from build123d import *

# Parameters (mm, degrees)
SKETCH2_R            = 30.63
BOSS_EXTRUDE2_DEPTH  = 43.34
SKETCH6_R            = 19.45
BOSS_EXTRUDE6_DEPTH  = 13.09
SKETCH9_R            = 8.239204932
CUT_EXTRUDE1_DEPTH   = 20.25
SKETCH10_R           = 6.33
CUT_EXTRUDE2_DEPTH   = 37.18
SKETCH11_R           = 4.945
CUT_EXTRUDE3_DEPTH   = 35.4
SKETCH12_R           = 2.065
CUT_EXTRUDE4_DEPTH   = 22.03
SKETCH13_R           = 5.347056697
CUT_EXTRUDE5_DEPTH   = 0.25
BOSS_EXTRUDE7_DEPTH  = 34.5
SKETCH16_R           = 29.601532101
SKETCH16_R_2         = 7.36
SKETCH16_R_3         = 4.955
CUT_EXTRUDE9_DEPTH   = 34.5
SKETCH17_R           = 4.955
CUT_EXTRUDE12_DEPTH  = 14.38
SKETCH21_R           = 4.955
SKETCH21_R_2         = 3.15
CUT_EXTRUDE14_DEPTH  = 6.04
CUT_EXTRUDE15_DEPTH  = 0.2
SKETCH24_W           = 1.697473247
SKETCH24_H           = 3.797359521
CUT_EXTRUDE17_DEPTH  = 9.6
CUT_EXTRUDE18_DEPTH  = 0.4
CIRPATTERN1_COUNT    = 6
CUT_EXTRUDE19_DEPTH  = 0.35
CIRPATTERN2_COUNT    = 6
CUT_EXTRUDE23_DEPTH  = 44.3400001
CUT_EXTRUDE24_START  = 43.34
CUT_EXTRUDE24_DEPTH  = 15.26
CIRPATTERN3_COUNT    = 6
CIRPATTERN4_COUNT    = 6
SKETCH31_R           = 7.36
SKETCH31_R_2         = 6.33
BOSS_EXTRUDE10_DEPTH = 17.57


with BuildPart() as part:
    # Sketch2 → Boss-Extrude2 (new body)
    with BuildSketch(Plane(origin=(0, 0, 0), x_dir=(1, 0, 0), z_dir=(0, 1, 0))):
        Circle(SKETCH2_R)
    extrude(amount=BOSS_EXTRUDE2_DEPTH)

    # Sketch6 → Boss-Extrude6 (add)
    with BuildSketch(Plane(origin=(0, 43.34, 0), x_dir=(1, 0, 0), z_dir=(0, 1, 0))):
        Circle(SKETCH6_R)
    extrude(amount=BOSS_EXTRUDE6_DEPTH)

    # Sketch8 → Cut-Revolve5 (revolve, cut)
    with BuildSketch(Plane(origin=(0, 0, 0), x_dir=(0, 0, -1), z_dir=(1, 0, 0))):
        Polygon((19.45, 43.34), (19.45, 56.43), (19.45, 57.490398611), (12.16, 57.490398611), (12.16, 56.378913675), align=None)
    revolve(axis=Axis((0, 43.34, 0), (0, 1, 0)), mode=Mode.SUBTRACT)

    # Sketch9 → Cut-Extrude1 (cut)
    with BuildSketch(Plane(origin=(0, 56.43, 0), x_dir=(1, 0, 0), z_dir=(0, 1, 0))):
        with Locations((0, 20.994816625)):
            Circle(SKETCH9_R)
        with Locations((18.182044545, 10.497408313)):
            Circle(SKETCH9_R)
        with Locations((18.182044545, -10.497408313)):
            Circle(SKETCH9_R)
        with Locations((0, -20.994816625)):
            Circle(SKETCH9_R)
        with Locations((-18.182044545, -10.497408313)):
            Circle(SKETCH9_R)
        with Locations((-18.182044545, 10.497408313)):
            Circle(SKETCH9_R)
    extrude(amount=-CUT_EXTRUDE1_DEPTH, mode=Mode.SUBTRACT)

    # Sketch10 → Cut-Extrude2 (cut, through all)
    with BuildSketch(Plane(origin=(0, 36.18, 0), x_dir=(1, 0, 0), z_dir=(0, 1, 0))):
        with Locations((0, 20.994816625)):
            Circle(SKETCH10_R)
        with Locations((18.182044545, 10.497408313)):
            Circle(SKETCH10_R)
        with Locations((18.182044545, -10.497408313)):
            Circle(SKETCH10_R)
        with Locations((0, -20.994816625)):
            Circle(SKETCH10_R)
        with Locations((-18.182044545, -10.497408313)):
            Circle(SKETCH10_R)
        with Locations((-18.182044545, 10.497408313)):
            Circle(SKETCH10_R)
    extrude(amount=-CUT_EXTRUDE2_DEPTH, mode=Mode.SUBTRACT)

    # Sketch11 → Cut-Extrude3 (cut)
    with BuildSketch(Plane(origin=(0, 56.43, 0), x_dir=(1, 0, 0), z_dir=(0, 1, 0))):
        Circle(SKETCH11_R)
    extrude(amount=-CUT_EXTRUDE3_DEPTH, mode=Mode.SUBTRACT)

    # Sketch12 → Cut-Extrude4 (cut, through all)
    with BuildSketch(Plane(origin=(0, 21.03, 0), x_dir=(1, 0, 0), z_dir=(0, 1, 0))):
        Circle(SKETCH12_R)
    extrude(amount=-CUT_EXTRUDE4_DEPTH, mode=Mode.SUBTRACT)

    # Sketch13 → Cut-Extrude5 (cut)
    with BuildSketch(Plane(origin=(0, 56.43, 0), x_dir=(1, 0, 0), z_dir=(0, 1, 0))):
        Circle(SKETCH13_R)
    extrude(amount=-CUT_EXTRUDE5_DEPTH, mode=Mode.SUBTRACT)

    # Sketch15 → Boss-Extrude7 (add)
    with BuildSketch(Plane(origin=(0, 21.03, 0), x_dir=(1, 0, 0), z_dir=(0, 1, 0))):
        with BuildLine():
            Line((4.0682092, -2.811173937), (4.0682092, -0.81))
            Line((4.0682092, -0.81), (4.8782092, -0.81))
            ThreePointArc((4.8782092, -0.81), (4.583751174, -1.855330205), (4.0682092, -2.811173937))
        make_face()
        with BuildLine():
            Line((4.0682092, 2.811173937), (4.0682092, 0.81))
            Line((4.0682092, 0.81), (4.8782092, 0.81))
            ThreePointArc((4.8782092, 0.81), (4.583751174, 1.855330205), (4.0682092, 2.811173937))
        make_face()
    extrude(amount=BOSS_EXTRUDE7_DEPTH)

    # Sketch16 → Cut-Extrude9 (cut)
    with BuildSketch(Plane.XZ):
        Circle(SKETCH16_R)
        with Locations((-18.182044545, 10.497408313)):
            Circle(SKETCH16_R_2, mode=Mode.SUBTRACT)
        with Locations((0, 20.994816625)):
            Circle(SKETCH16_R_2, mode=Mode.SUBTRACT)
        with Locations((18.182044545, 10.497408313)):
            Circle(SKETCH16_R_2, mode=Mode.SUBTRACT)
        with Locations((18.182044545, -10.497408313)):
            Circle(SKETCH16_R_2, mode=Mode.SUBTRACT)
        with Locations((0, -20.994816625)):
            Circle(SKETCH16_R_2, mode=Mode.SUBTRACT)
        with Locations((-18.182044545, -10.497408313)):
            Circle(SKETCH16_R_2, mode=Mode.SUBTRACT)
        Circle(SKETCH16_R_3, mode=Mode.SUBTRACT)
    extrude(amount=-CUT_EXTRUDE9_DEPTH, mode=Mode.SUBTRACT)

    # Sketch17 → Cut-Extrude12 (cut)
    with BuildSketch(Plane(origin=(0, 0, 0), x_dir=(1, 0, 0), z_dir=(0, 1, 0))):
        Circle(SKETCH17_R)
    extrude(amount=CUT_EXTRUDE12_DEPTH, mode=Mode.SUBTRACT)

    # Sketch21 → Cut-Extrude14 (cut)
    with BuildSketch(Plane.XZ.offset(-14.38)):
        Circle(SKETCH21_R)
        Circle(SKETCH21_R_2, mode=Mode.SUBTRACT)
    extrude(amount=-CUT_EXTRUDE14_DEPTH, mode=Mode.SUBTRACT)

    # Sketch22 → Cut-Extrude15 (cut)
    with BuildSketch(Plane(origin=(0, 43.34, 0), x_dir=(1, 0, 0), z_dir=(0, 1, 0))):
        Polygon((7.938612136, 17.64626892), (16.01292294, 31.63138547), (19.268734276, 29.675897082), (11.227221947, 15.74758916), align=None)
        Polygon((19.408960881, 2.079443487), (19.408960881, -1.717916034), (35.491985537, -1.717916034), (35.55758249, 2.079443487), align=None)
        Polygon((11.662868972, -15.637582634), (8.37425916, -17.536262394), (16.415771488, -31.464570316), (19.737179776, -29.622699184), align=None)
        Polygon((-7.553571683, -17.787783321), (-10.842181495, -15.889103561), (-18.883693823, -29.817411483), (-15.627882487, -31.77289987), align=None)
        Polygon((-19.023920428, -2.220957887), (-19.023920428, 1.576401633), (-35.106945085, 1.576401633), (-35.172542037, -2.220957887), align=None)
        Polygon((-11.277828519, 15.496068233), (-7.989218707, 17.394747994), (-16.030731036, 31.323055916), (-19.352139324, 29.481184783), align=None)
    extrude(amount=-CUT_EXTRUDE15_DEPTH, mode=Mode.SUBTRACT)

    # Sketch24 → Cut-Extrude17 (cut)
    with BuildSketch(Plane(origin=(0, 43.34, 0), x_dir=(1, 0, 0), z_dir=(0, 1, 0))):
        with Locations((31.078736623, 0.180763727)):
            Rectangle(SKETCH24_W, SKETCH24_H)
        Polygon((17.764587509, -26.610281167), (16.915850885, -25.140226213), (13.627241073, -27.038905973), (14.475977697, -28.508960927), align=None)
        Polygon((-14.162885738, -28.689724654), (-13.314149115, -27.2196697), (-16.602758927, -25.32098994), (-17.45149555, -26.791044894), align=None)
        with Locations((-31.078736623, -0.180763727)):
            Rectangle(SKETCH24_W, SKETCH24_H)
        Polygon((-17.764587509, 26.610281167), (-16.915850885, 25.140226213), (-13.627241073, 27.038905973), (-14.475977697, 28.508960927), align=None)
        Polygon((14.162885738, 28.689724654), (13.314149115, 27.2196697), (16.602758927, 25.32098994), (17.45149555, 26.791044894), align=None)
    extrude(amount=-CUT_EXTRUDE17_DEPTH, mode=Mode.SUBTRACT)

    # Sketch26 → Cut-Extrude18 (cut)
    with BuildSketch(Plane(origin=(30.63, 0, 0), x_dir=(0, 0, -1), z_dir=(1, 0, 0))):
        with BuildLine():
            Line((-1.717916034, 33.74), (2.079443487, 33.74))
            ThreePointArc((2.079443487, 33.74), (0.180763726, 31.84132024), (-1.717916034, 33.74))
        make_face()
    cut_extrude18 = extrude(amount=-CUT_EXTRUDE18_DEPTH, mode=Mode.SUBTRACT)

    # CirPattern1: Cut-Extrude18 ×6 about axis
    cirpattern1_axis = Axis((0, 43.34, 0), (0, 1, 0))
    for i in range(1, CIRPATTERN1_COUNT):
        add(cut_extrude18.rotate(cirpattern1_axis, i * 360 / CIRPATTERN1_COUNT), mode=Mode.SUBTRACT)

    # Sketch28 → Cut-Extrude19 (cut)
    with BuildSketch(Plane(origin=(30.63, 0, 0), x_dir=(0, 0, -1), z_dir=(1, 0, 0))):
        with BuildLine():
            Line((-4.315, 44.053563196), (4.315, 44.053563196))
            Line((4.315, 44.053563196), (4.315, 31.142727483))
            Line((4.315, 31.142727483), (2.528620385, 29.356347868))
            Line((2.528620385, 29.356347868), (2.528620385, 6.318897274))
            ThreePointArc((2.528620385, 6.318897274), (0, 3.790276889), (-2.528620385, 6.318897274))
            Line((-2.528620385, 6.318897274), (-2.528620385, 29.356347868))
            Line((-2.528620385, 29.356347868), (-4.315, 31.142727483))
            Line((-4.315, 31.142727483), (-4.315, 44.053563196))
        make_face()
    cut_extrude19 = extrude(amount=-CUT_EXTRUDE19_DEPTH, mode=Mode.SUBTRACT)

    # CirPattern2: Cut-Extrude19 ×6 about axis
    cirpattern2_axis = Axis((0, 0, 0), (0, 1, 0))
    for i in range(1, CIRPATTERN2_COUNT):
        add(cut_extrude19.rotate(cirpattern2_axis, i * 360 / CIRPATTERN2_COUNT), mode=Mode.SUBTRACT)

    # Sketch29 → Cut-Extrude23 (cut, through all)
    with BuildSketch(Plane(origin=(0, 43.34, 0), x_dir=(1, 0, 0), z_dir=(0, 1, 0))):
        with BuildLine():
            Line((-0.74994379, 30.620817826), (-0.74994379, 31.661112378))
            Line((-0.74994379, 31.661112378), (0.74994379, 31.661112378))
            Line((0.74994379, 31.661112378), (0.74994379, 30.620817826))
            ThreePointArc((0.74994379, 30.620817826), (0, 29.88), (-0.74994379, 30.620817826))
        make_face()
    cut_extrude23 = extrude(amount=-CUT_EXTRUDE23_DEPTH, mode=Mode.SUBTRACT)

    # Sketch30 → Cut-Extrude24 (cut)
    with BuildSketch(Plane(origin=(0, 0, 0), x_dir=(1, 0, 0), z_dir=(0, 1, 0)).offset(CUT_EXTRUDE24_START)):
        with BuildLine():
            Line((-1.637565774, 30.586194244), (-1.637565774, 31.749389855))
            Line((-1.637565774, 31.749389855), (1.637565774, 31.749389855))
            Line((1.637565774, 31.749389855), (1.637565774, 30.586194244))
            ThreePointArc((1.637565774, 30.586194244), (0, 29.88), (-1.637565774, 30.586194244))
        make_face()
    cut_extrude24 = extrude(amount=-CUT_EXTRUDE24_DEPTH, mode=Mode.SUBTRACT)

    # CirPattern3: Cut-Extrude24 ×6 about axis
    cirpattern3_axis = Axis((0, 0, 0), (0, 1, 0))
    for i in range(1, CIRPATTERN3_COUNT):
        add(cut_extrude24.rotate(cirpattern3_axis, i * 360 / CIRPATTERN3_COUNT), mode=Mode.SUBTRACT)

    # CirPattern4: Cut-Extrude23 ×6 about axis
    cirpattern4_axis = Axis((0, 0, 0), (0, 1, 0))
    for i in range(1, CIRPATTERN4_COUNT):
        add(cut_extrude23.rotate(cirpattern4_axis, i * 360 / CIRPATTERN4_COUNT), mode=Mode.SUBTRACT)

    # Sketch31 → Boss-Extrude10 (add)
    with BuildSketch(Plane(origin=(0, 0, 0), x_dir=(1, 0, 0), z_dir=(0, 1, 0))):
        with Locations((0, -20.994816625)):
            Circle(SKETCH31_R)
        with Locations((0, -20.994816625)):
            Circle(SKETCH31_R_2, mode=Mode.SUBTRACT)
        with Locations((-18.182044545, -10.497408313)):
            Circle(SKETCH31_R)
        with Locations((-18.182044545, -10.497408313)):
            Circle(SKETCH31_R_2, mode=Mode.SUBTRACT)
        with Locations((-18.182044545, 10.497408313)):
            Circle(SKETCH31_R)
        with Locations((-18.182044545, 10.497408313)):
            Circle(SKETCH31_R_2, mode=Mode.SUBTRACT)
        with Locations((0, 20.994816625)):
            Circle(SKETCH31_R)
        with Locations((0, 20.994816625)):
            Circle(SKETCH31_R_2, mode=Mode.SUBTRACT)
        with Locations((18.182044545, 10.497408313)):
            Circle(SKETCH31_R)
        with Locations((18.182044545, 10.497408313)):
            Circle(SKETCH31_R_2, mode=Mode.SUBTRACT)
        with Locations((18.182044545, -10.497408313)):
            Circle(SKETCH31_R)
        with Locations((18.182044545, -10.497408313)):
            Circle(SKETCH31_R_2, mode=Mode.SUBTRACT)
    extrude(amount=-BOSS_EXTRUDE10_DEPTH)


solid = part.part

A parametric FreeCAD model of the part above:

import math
import FreeCAD as App
import Part
import Sketcher

V = App.Vector
Q = App.Units.Quantity

doc = App.newDocument("Part")
body = doc.addObject("PartDesign::Body", "Body")

sketch1 = body.newObject("Sketcher::SketchObject", "Sketch")
sketch1.AttachmentSupport = (doc.getObject("XZ_Plane"), [""])
sketch1.MapMode = "FlatFace"
sketch1.addGeometry(Part.Circle(V(0, 0, 0), V(0, 0, 1), 31), False)
sketch1.addConstraint([
    Sketcher.Constraint("Coincident", 0, 3, -1, 1),
    Sketcher.Constraint("Diameter", 0, 61.26),
])
pad1 = body.newObject("PartDesign::Pad", "Pad")
pad1.Profile = sketch1
pad1.Length = 43.34
pad1.Reversed = True

sketch2 = body.newObject("Sketcher::SketchObject", "Sketch001")
sketch2.AttachmentSupport = (doc.getObject("XZ_Plane"), [""])
sketch2.MapMode = "FlatFace"
sketch2.AttachmentOffset = App.Placement(V(0, 0, -43.34), App.Rotation())
sketch2.addGeometry(Part.Circle(V(0, 0, 0), V(0, 0, 1), 19), False)
sketch2.addConstraint([
    Sketcher.Constraint("Coincident", 0, 3, -1, 1),
    Sketcher.Constraint("Diameter", 0, 38.9),
])
pad2 = body.newObject("PartDesign::Pad", "Pad001")
pad2.Profile = sketch2
pad2.Length = 13.09
pad2.Reversed = True

sketch3 = body.newObject("Sketcher::SketchObject", "Sketch002")
sketch3.AttachmentSupport = (doc.getObject("YZ_Plane"), [""])
sketch3.MapMode = "FlatFace"
sketch3.addGeometry([
    Part.LineSegment(V(43.3, -19.4, 0), V(57.5, -19.4, 0)),
    Part.LineSegment(V(57.5, -19.4, 0), V(57.5, -12.2, 0)),
    Part.LineSegment(V(57.5, -12.2, 0), V(56.4, -12.2, 0)),
    Part.LineSegment(V(56.4, -12.2, 0), V(43.3, -19.4, 0)),
], False)
sketch3.addConstraint([
    Sketcher.Constraint("Coincident", 0, 2, 1, 1),
    Sketcher.Constraint("Coincident", 1, 2, 2, 1),
    Sketcher.Constraint("Coincident", 2, 2, 3, 1),
    Sketcher.Constraint("Coincident", 3, 2, 0, 1),
    Sketcher.Constraint("Horizontal", 0),
    Sketcher.Constraint("Vertical", 1),
    Sketcher.Constraint("Horizontal", 2),
    Sketcher.Constraint("DistanceY", 1, 1, 1, 2, 7.29),
    Sketcher.Constraint("DistanceY", 0, 2, -1, 1, 19.45),
    Sketcher.Constraint("DistanceX", -1, 1, 3, 2, 43.34),
    Sketcher.Constraint("DistanceX", 0, 1, 0, 2, 14.150399),
    Sketcher.Constraint("DistanceX", 2, 2, 2, 1, 1.111485),
])
groove = body.newObject("PartDesign::Groove", "Groove")
groove.Profile = sketch3
groove.ReferenceAxis = (sketch3, ["H_Axis"])
groove.Angle = 360

sketch4 = body.newObject("Sketcher::SketchObject", "Sketch003")
sketch4.AttachmentSupport = (doc.getObject("XZ_Plane"), [""])
sketch4.MapMode = "FlatFace"
sketch4.AttachmentOffset = App.Placement(V(0, 0, -56.43), App.Rotation())
sketch4.addGeometry([
    Part.Circle(V(0, -21, 0), V(0, 0, 1), 8),
    Part.Circle(V(18, -10, 0), V(0, 0, 1), 8),
    Part.Circle(V(18, 10, 0), V(0, 0, 1), 8),
    Part.Circle(V(0, 21, 0), V(0, 0, 1), 8),
    Part.Circle(V(-18, 10, 0), V(0, 0, 1), 8),
    Part.Circle(V(-18, -10, 0), V(0, 0, 1), 8),
], False)
sketch4.addConstraint([
    Sketcher.Constraint("Equal", 0, 1),
    Sketcher.Constraint("Equal", 1, 2),
    Sketcher.Constraint("Equal", 2, 3),
    Sketcher.Constraint("Equal", 3, 4),
    Sketcher.Constraint("Equal", 4, 5),
    Sketcher.Constraint("Symmetric", 0, 3, 3, 3, -1, 1),
    Sketcher.Constraint("Symmetric", 1, 3, 4, 3, -1, 1),
    Sketcher.Constraint("Symmetric", 2, 3, 5, 3, -1, 1),
    Sketcher.Constraint("Symmetric", 2, 3, 4, 3, -2),
    Sketcher.Constraint("PointOnObject", 0, 3, -2),
    Sketcher.Constraint("Diameter", 0, 16.47841),
    Sketcher.Constraint("DistanceY", 1, 3, -1, 1, 10.497408),
    Sketcher.Constraint("DistanceY", 0, 3, 1, 3, 10.497408),
    Sketcher.Constraint("DistanceX", 4, 3, 2, 3, 36.364089),
])
pocket1 = body.newObject("PartDesign::Pocket", "Pocket")
pocket1.Profile = sketch4
pocket1.Length = 20.25
pocket1.Reversed = True

sketch5 = body.newObject("Sketcher::SketchObject", "Sketch004")
sketch5.AttachmentSupport = (doc.getObject("XZ_Plane"), [""])
sketch5.MapMode = "FlatFace"
sketch5.AttachmentOffset = App.Placement(V(0, 0, -36.18), App.Rotation())
sketch5.addGeometry([
    Part.Circle(V(0, -21, 0), V(0, 0, 1), 6),
    Part.Circle(V(18, -10, 0), V(0, 0, 1), 6),
    Part.Circle(V(18, 10, 0), V(0, 0, 1), 6),
    Part.Circle(V(0, 21, 0), V(0, 0, 1), 6),
    Part.Circle(V(-18, 10, 0), V(0, 0, 1), 6),
    Part.Circle(V(-18, -10, 0), V(0, 0, 1), 6),
], False)
sketch5.addConstraint([
    Sketcher.Constraint("Equal", 0, 1),
    Sketcher.Constraint("Equal", 1, 2),
    Sketcher.Constraint("Equal", 2, 3),
    Sketcher.Constraint("Equal", 3, 4),
    Sketcher.Constraint("Equal", 4, 5),
    Sketcher.Constraint("Symmetric", 0, 3, 3, 3, -1, 1),
    Sketcher.Constraint("Symmetric", 1, 3, 4, 3, -1, 1),
    Sketcher.Constraint("Symmetric", 2, 3, 5, 3, -1, 1),
    Sketcher.Constraint("Symmetric", 2, 3, 4, 3, -2),
    Sketcher.Constraint("PointOnObject", 0, 3, -2),
    Sketcher.Constraint("Diameter", 0, 12.66),
    Sketcher.Constraint("DistanceY", 1, 3, -1, 1, 10.497408),
    Sketcher.Constraint("DistanceY", 0, 3, 1, 3, 10.497408),
    Sketcher.Constraint("DistanceX", 4, 3, 2, 3, 36.364089),
])
pocket2 = body.newObject("PartDesign::Pocket", "Pocket001")
pocket2.Profile = sketch5
pocket2.Type = "ThroughAll"
pocket2.Reversed = True

sketch6 = body.newObject("Sketcher::SketchObject", "Sketch005")
sketch6.AttachmentSupport = (doc.getObject("XZ_Plane"), [""])
sketch6.MapMode = "FlatFace"
sketch6.AttachmentOffset = App.Placement(V(0, 0, -56.43), App.Rotation())
sketch6.addGeometry(Part.Circle(V(0, 0, 0), V(0, 0, 1), 4.9), False)
sketch6.addConstraint([
    Sketcher.Constraint("Coincident", 0, 3, -1, 1),
    Sketcher.Constraint("Diameter", 0, 9.89),
])
pocket3 = body.newObject("PartDesign::Pocket", "Pocket002")
pocket3.Profile = sketch6
pocket3.Length = 35.4
pocket3.Reversed = True

sketch7 = body.newObject("Sketcher::SketchObject", "Sketch006")
sketch7.AttachmentSupport = (doc.getObject("XZ_Plane"), [""])
sketch7.MapMode = "FlatFace"
sketch7.AttachmentOffset = App.Placement(V(0, 0, -21.03), App.Rotation())
sketch7.addGeometry(Part.Circle(V(0, 0, 0), V(0, 0, 1), 2.1), False)
sketch7.addConstraint([
    Sketcher.Constraint("Coincident", 0, 3, -1, 1),
    Sketcher.Constraint("Diameter", 0, 4.13),
])
pocket4 = body.newObject("PartDesign::Pocket", "Pocket003")
pocket4.Profile = sketch7
pocket4.Type = "ThroughAll"
pocket4.Reversed = True

sketch8 = body.newObject("Sketcher::SketchObject", "Sketch007")
sketch8.AttachmentSupport = (doc.getObject("XZ_Plane"), [""])
sketch8.MapMode = "FlatFace"
sketch8.AttachmentOffset = App.Placement(V(0, 0, -56.43), App.Rotation())
sketch8.addGeometry(Part.Circle(V(0, 0, 0), V(0, 0, 1), 5), False)
sketch8.addConstraint([
    Sketcher.Constraint("Coincident", 0, 3, -1, 1),
    Sketcher.Constraint("Diameter", 0, 10.694113),
])
pocket5 = body.newObject("PartDesign::Pocket", "Pocket004")
pocket5.Profile = sketch8
pocket5.Length = 0.25
pocket5.Reversed = True

sketch9 = body.newObject("Sketcher::SketchObject", "Sketch008")
sketch9.AttachmentSupport = (doc.getObject("XZ_Plane"), [""])
sketch9.MapMode = "FlatFace"
sketch9.AttachmentOffset = App.Placement(V(0, 0, -21.03), App.Rotation())
sketch9.addGeometry([
    Part.LineSegment(V(4.1, 0.8, 0), V(4.1, 2.8, 0)),
    Part.ArcOfCircle(Part.Circle(V(0, 0, 0), V(0, 0, 1), 4.9), math.radians(9), math.radians(35)),
    Part.LineSegment(V(4.9, 0.8, 0), V(4.1, 0.8, 0)),
    Part.LineSegment(V(4.1, -2.8, 0), V(4.1, -0.8, 0)),
    Part.LineSegment(V(4.1, -0.8, 0), V(4.9, -0.8, 0)),
    Part.ArcOfCircle(Part.Circle(V(0, 0, 0), V(0, 0, 1), 4.9), math.radians(-35), math.radians(-9)),
], False)
sketch9.addConstraint([
    Sketcher.Constraint("Coincident", 0, 2, 1, 2),
    Sketcher.Constraint("Coincident", 1, 1, 2, 1),
    Sketcher.Constraint("Coincident", 2, 2, 0, 1),
    Sketcher.Constraint("Coincident", 3, 2, 4, 1),
    Sketcher.Constraint("Coincident", 4, 2, 5, 2),
    Sketcher.Constraint("Coincident", 5, 1, 3, 1),
    Sketcher.Constraint("Vertical", 0),
    Sketcher.Constraint("Horizontal", 2),
    Sketcher.Constraint("Vertical", 3),
    Sketcher.Constraint("Horizontal", 4),
    Sketcher.Constraint("Coincident", 1, 3, -1, 1),
    Sketcher.Constraint("Coincident", 5, 3, -1, 1),
    Sketcher.Constraint("Equal", 1, 5),
    Sketcher.Constraint("Symmetric", 2, 2, 3, 2, -1),
    Sketcher.Constraint("Radius", 1, 4.945),
    Sketcher.Constraint("DistanceX", 2, 2, 2, 1, 0.81),
    Sketcher.Constraint("DistanceY", -1, 1, 1, 1, 0.81),
])
pad3 = body.newObject("PartDesign::Pad", "Pad002")
pad3.Profile = sketch9
pad3.Length = 34.5
pad3.Reversed = True

sketch10 = body.newObject("Sketcher::SketchObject", "Sketch009")
sketch10.AttachmentSupport = (doc.getObject("XZ_Plane"), [""])
sketch10.MapMode = "FlatFace"
sketch10.addGeometry([
    Part.Circle(V(0, 0, 0), V(0, 0, 1), 29.6),
    Part.Circle(V(-18.2, -10.5, 0), V(0, 0, 1), 7.4),
    Part.Circle(V(0, -21, 0), V(0, 0, 1), 7.4),
    Part.Circle(V(18.2, -10.5, 0), V(0, 0, 1), 7.4),
    Part.Circle(V(-18.2, 10.5, 0), V(0, 0, 1), 7.4),
    Part.Circle(V(0, 0, 0), V(0, 0, 1), 5),
    Part.Circle(V(18.2, 10.5, 0), V(0, 0, 1), 7.4),
    Part.Circle(V(0, 21, 0), V(0, 0, 1), 7.4),
], False)
sketch10.addConstraint([
    Sketcher.Constraint("Coincident", 0, 3, -1, 1),
    Sketcher.Constraint("Coincident", 5, 3, -1, 1),
    Sketcher.Constraint("Equal", 1, 2),
    Sketcher.Constraint("Equal", 2, 3),
    Sketcher.Constraint("Equal", 3, 4),
    Sketcher.Constraint("Equal", 4, 6),
    Sketcher.Constraint("Equal", 6, 7),
    Sketcher.Constraint("Symmetric", 3, 3, 4, 3, -1, 1),
    Sketcher.Constraint("Symmetric", 1, 3, 6, 3, -1, 1),
    Sketcher.Constraint("Symmetric", 2, 3, 7, 3, -1, 1),
    Sketcher.Constraint("Symmetric", 1, 3, 3, 3, -2),
    Sketcher.Constraint("PointOnObject", 2, 3, -2),
    Sketcher.Constraint("Diameter", 1, 14.72),
    Sketcher.Constraint("Diameter", 5, 9.91),
    Sketcher.Constraint("Diameter", 0, 59.203064),
    Sketcher.Constraint("DistanceY", 1, 3, -1, 1, 10.497408),
    Sketcher.Constraint("DistanceY", 2, 3, 1, 3, 10.497408),
    Sketcher.Constraint("DistanceX", 1, 3, 3, 3, 36.364089),
])
pocket6 = body.newObject("PartDesign::Pocket", "Pocket005")
pocket6.Profile = sketch10
pocket6.Length = 34.5

sketch11 = body.newObject("Sketcher::SketchObject", "Sketch010")
sketch11.AttachmentSupport = (doc.getObject("XZ_Plane"), [""])
sketch11.MapMode = "FlatFace"
sketch11.addGeometry(Part.Circle(V(0, 0, 0), V(0, 0, 1), 5), False)
sketch11.addConstraint([
    Sketcher.Constraint("Coincident", 0, 3, -1, 1),
    Sketcher.Constraint("Diameter", 0, 9.91),
])
pocket7 = body.newObject("PartDesign::Pocket", "Pocket006")
pocket7.Profile = sketch11
pocket7.Length = 14.38

sketch12 = body.newObject("Sketcher::SketchObject", "Sketch011")
sketch12.AttachmentSupport = (doc.getObject("XZ_Plane"), [""])
sketch12.MapMode = "FlatFace"
sketch12.AttachmentOffset = App.Placement(V(0, 0, -14.38), App.Rotation())
sketch12.addGeometry([
    Part.Circle(V(0, 0, 0), V(0, 0, 1), 5),
    Part.Circle(V(0, 0, 0), V(0, 0, 1), 3.1),
], False)
sketch12.addConstraint([
    Sketcher.Constraint("Coincident", 0, 3, -1, 1),
    Sketcher.Constraint("Coincident", 1, 3, -1, 1),
    Sketcher.Constraint("Diameter", 1, 6.3),
    Sketcher.Constraint("Diameter", 0, 9.91),
])
pocket8 = body.newObject("PartDesign::Pocket", "Pocket007")
pocket8.Profile = sketch12
pocket8.Length = 6.04

sketch13 = body.newObject("Sketcher::SketchObject", "Sketch012")
sketch13.AttachmentSupport = (doc.getObject("XZ_Plane"), [""])
sketch13.MapMode = "FlatFace"
sketch13.AttachmentOffset = App.Placement(V(0, 0, -43.34), App.Rotation())
sketch13.addGeometry([
    Part.LineSegment(V(16.012923, -31.631385, 0), V(7.938612, -17.646269, 0)),
    Part.LineSegment(V(7.938612, -17.646269, 0), V(11.227222, -15.747589, 0)),
    Part.LineSegment(V(11.227222, -15.747589, 0), V(19.268734, -29.675897, 0)),
    Part.LineSegment(V(19.268734, -29.675897, 0), V(16.012923, -31.631385, 0)),
    Part.LineSegment(V(19.408961, -2.079443, 0), V(19.408961, 1.717916, 0)),
    Part.LineSegment(V(19.408961, 1.717916, 0), V(35.491986, 1.717916, 0)),
    Part.LineSegment(V(35.491986, 1.717916, 0), V(35.557582, -2.079443, 0)),
    Part.LineSegment(V(35.557582, -2.079443, 0), V(19.408961, -2.079443, 0)),
    Part.LineSegment(V(11.662869, 15.637583, 0), V(8.374259, 17.536262, 0)),
    Part.LineSegment(V(8.374259, 17.536262, 0), V(16.415771, 31.46457, 0)),
    Part.LineSegment(V(16.415771, 31.46457, 0), V(19.73718, 29.622699, 0)),
    Part.LineSegment(V(19.73718, 29.622699, 0), V(11.662869, 15.637583, 0)),
    Part.LineSegment(V(-7.553572, 17.787783, 0), V(-10.842181, 15.889104, 0)),
    Part.LineSegment(V(-10.842181, 15.889104, 0), V(-18.883694, 29.817411, 0)),
    Part.LineSegment(V(-18.883694, 29.817411, 0), V(-15.627882, 31.7729, 0)),
    Part.LineSegment(V(-15.627882, 31.7729, 0), V(-7.553572, 17.787783, 0)),
    Part.LineSegment(V(-19.02392, 2.220958, 0), V(-19.02392, -1.576402, 0)),
    Part.LineSegment(V(-19.02392, -1.576402, 0), V(-35.106945, -1.576402, 0)),
    Part.LineSegment(V(-35.106945, -1.576402, 0), V(-35.172542, 2.220958, 0)),
    Part.LineSegment(V(-35.172542, 2.220958, 0), V(-19.02392, 2.220958, 0)),
    Part.LineSegment(V(-11.277829, -15.496068, 0), V(-7.989219, -17.394748, 0)),
    Part.LineSegment(V(-7.989219, -17.394748, 0), V(-16.030731, -31.323056, 0)),
    Part.LineSegment(V(-16.030731, -31.323056, 0), V(-19.352139, -29.481185, 0)),
    Part.LineSegment(V(-19.352139, -29.481185, 0), V(-11.277829, -15.496068, 0)),
], False)
sketch13.addConstraint([
    Sketcher.Constraint("Coincident", 0, 2, 1, 1),
    Sketcher.Constraint("Coincident", 1, 2, 2, 1),
    Sketcher.Constraint("Coincident", 2, 2, 3, 1),
    Sketcher.Constraint("Coincident", 3, 2, 0, 1),
    Sketcher.Constraint("Coincident", 4, 2, 5, 1),
    Sketcher.Constraint("Coincident", 5, 2, 6, 1),
    Sketcher.Constraint("Coincident", 6, 2, 7, 1),
    Sketcher.Constraint("Coincident", 7, 2, 4, 1),
    Sketcher.Constraint("Coincident", 8, 2, 9, 1),
    Sketcher.Constraint("Coincident", 9, 2, 10, 1),
    Sketcher.Constraint("Coincident", 10, 2, 11, 1),
    Sketcher.Constraint("Coincident", 11, 2, 8, 1),
    Sketcher.Constraint("Coincident", 12, 2, 13, 1),
    Sketcher.Constraint("Coincident", 13, 2, 14, 1),
    Sketcher.Constraint("Coincident", 14, 2, 15, 1),
    Sketcher.Constraint("Coincident", 15, 2, 12, 1),
    Sketcher.Constraint("Coincident", 16, 2, 17, 1),
    Sketcher.Constraint("Coincident", 17, 2, 18, 1),
    Sketcher.Constraint("Coincident", 18, 2, 19, 1),
    Sketcher.Constraint("Coincident", 19, 2, 16, 1),
    Sketcher.Constraint("Coincident", 20, 2, 21, 1),
    Sketcher.Constraint("Coincident", 21, 2, 22, 1),
    Sketcher.Constraint("Coincident", 22, 2, 23, 1),
    Sketcher.Constraint("Coincident", 23, 2, 20, 1),
    Sketcher.Constraint("Vertical", 4),
    Sketcher.Constraint("Horizontal", 5),
    Sketcher.Constraint("Horizontal", 7),
    Sketcher.Constraint("Vertical", 16),
    Sketcher.Constraint("Horizontal", 17),
    Sketcher.Constraint("Horizontal", 19),
    Sketcher.Constraint("Perpendicular", 0, 1),
    Sketcher.Constraint("Perpendicular", 1, 2),
    Sketcher.Constraint("Perpendicular", 8, 9),
    Sketcher.Constraint("Parallel", 9, 11),
    Sketcher.Constraint("Perpendicular", 2, 12),
    Sketcher.Constraint("Perpendicular", 12, 13),
    Sketcher.Constraint("Parallel", 3, 14),
    Sketcher.Constraint("Parallel", 13, 15),
    Sketcher.Constraint("Parallel", 6, 18),
    Sketcher.Constraint("Perpendicular", 11, 20),
    Sketcher.Constraint("Perpendicular", 20, 21),
    Sketcher.Constraint("Parallel", 10, 22),
    Sketcher.Constraint("Parallel", 21, 23),
    Sketcher.Constraint("Equal", 5, 17),
    Sketcher.Constraint("Equal", 7, 19),
    Sketcher.Constraint("Equal", 3, 6),
    Sketcher.Constraint("Equal", 1, 8),
    Sketcher.Constraint("Equal", 2, 9),
    Sketcher.Constraint("Equal", 6, 10),
    Sketcher.Constraint("Equal", 8, 12),
    Sketcher.Constraint("Equal", 9, 13),
    Sketcher.Constraint("Equal", 12, 20),
    Sketcher.Constraint("Equal", 13, 21),
    Sketcher.Constraint("Angle", 0, Q("120 deg")),
    Sketcher.Constraint("Angle", 8, Q("150 deg")),
    Sketcher.Constraint("DistanceX", 7, 2, 7, 1, 16.148622),
    Sketcher.Constraint("DistanceY", 4, 1, 4, 2, 3.79736),
    Sketcher.Constraint("DistanceY", -1, 1, 10, 2, 29.622699),
    Sketcher.Constraint("DistanceY", -1, 1, 14, 2, 31.7729),
    Sketcher.Constraint("DistanceY", 16, 2, -1, 1, 1.576402),
    Sketcher.Constraint("DistanceX", 1, 2, 3, 2, 4.785701),
    Sketcher.Constraint("DistanceY", 3, 2, 4, 2, 33.349302),
    Sketcher.Constraint("DistanceX", 8, 2, 4, 2, 11.034702),
    Sketcher.Constraint("DistanceX", 16, 2, 20, 2, 11.034702),
    Sketcher.Constraint("Distance", 0, 16.148622),
    Sketcher.Constraint("DistanceX", 5, 1, 5, 2, 16.083025),
    Sketcher.Constraint("DistanceY", 0, 2, -1, 1, 17.646269),
    Sketcher.Constraint("DistanceX", -1, 1, 1, 2, 11.227222),
    Sketcher.Constraint("DistanceX", -1, 1, 4, 2, 19.408961),
    Sketcher.Constraint("DistanceX", 12, 2, -1, 1, 10.842181),
    Sketcher.Constraint("DistanceX", 16, 2, -1, 1, 19.02392),
    Sketcher.Constraint("DistanceY", 23, 2, -1, 1, 15.496068),
])
pocket9 = body.newObject("PartDesign::Pocket", "Pocket008")
pocket9.Profile = sketch13
pocket9.Length = 0.2
pocket9.Reversed = True

sketch14 = body.newObject("Sketcher::SketchObject", "Sketch013")
sketch14.AttachmentSupport = (doc.getObject("XZ_Plane"), [""])
sketch14.MapMode = "FlatFace"
sketch14.AttachmentOffset = App.Placement(V(0, 0, -43.34), App.Rotation())
sketch14.addGeometry([
    Part.LineSegment(V(30.2, -2.1, 0), V(30.2, 1.7, 0)),
    Part.LineSegment(V(30.2, 1.7, 0), V(31.9, 1.7, 0)),
    Part.LineSegment(V(31.9, 1.7, 0), V(31.9, -2.1, 0)),
    Part.LineSegment(V(31.9, -2.1, 0), V(30.2, -2.1, 0)),
    Part.LineSegment(V(17.8, 26.6, 0), V(16.9, 25.1, 0)),
    Part.LineSegment(V(16.9, 25.1, 0), V(13.6, 27, 0)),
    Part.LineSegment(V(13.6, 27, 0), V(14.5, 28.5, 0)),
    Part.LineSegment(V(14.5, 28.5, 0), V(17.8, 26.6, 0)),
    Part.LineSegment(V(-14.2, 28.7, 0), V(-13.3, 27.2, 0)),
    Part.LineSegment(V(-13.3, 27.2, 0), V(-16.6, 25.3, 0)),
    Part.LineSegment(V(-16.6, 25.3, 0), V(-17.5, 26.8, 0)),
    Part.LineSegment(V(-17.5, 26.8, 0), V(-14.2, 28.7, 0)),
    Part.LineSegment(V(-31.9, -1.7, 0), V(-31.9, 2.1, 0)),
    Part.LineSegment(V(-31.9, 2.1, 0), V(-30.2, 2.1, 0)),
    Part.LineSegment(V(-30.2, 2.1, 0), V(-30.2, -1.7, 0)),
    Part.LineSegment(V(-30.2, -1.7, 0), V(-31.9, -1.7, 0)),
    Part.LineSegment(V(-17.8, -26.6, 0), V(-16.9, -25.1, 0)),
    Part.LineSegment(V(-16.9, -25.1, 0), V(-13.6, -27, 0)),
    Part.LineSegment(V(-13.6, -27, 0), V(-14.5, -28.5, 0)),
    Part.LineSegment(V(-14.5, -28.5, 0), V(-17.8, -26.6, 0)),
    Part.LineSegment(V(14.2, -28.7, 0), V(13.3, -27.2, 0)),
    Part.LineSegment(V(13.3, -27.2, 0), V(16.6, -25.3, 0)),
    Part.LineSegment(V(16.6, -25.3, 0), V(17.5, -26.8, 0)),
    Part.LineSegment(V(17.5, -26.8, 0), V(14.2, -28.7, 0)),
], False)
sketch14.addConstraint([
    Sketcher.Constraint("Coincident", 0, 2, 1, 1),
    Sketcher.Constraint("Coincident", 1, 2, 2, 1),
    Sketcher.Constraint("Coincident", 2, 2, 3, 1),
    Sketcher.Constraint("Coincident", 3, 2, 0, 1),
    Sketcher.Constraint("Coincident", 4, 2, 5, 1),
    Sketcher.Constraint("Coincident", 5, 2, 6, 1),
    Sketcher.Constraint("Coincident", 6, 2, 7, 1),
    Sketcher.Constraint("Coincident", 7, 2, 4, 1),
    Sketcher.Constraint("Coincident", 8, 2, 9, 1),
    Sketcher.Constraint("Coincident", 9, 2, 10, 1),
    Sketcher.Constraint("Coincident", 10, 2, 11, 1),
    Sketcher.Constraint("Coincident", 11, 2, 8, 1),
    Sketcher.Constraint("Coincident", 12, 2, 13, 1),
    Sketcher.Constraint("Coincident", 13, 2, 14, 1),
    Sketcher.Constraint("Coincident", 14, 2, 15, 1),
    Sketcher.Constraint("Coincident", 15, 2, 12, 1),
    Sketcher.Constraint("Coincident", 16, 2, 17, 1),
    Sketcher.Constraint("Coincident", 17, 2, 18, 1),
    Sketcher.Constraint("Coincident", 18, 2, 19, 1),
    Sketcher.Constraint("Coincident", 19, 2, 16, 1),
    Sketcher.Constraint("Coincident", 20, 2, 21, 1),
    Sketcher.Constraint("Coincident", 21, 2, 22, 1),
    Sketcher.Constraint("Coincident", 22, 2, 23, 1),
    Sketcher.Constraint("Coincident", 23, 2, 20, 1),
    Sketcher.Constraint("Vertical", 0),
    Sketcher.Constraint("Horizontal", 1),
    Sketcher.Constraint("Vertical", 2),
    Sketcher.Constraint("Horizontal", 3),
    Sketcher.Constraint("Vertical", 12),
    Sketcher.Constraint("Horizontal", 13),
    Sketcher.Constraint("Vertical", 14),
    Sketcher.Constraint("Horizontal", 15),
    Sketcher.Constraint("Symmetric", 2, 2, 12, 2, -1, 1),
    Sketcher.Constraint("Symmetric", 0, 2, 14, 2, -1, 1),
    Sketcher.Constraint("Symmetric", 4, 2, 16, 2, -1, 1),
    Sketcher.Constraint("Symmetric", 5, 2, 17, 2, -1, 1),
    Sketcher.Constraint("Symmetric", 6, 2, 18, 2, -1, 1),
    Sketcher.Constraint("Symmetric", 7, 2, 19, 2, -1, 1),
    Sketcher.Constraint("Symmetric", 8, 2, 20, 2, -1, 1),
    Sketcher.Constraint("Symmetric", 9, 2, 21, 2, -1, 1),
    Sketcher.Constraint("Symmetric", 10, 2, 22, 2, -1, 1),
    Sketcher.Constraint("Symmetric", 11, 2, 23, 2, -1, 1),
    Sketcher.Constraint("Perpendicular", 4, 5),
    Sketcher.Constraint("Perpendicular", 5, 6),
    Sketcher.Constraint("Perpendicular", 6, 7),
    Sketcher.Constraint("Perpendicular", 8, 9),
    Sketcher.Constraint("Perpendicular", 9, 10),
    Sketcher.Constraint("Perpendicular", 10, 11),
    Sketcher.Constraint("Equal", 6, 8),
    Sketcher.Constraint("Equal", 7, 9),
    Sketcher.Constraint("Angle", 4, Q("-120 deg")),
    Sketcher.Constraint("Angle", 8, Q("-60 deg")),
    Sketcher.Constraint("DistanceX", -1, 1, 0, 2, 30.23),
    Sketcher.Constraint("DistanceX", 8, 2, 4, 2, 30.23),
    Sketcher.Constraint("DistanceY", 0, 1, 0, 2, 3.79736),
    Sketcher.Constraint("DistanceY", 12, 2, 10, 2, 24.711601),
    Sketcher.Constraint("Distance", 5, 3.79736),
    Sketcher.Constraint("DistanceX", 1, 1, 1, 2, 1.697473),
    Sketcher.Constraint("DistanceX", -1, 1, 4, 2, 16.915851),
    Sketcher.Constraint("DistanceY", -1, 1, 6, 2, 28.508961),
    Sketcher.Constraint("DistanceY", -1, 1, 8, 2, 27.21967),
    Sketcher.Constraint("DistanceY", 10, 2, 5, 2, 0.247861),
])
pocket10 = body.newObject("PartDesign::Pocket", "Pocket009")
pocket10.Profile = sketch14
pocket10.Length = 9.6
pocket10.Reversed = True

sketch15 = body.newObject("Sketcher::SketchObject", "Sketch014")
sketch15.AttachmentSupport = (doc.getObject("YZ_Plane"), [""])
sketch15.MapMode = "FlatFace"
sketch15.AttachmentOffset = App.Placement(V(0, 0, 30.63), App.Rotation())
sketch15.addGeometry([
    Part.LineSegment(V(33.7, -2.1, 0), V(33.7, 1.7, 0)),
    Part.ArcOfCircle(Part.Circle(V(33.7, -0.2, 0), V(0, 0, 1), 1.9), math.radians(90), math.radians(270)),
], False)
sketch15.addConstraint([
    Sketcher.Constraint("Coincident", 0, 1, 1, 2),
    Sketcher.Constraint("Coincident", 1, 1, 0, 2),
    Sketcher.Constraint("Vertical", 0),
    Sketcher.Constraint("Vertical", 1, 3, 0, 1),
    Sketcher.Constraint("DistanceX", -1, 1, 1, 3, 33.74),
    Sketcher.Constraint("Radius", 1, 1.89868),
    Sketcher.Constraint("DistanceY", 1, 3, -1, 1, 0.180764),
])
pocket11 = body.newObject("PartDesign::Pocket", "Pocket010")
pocket11.Profile = sketch15
pocket11.Length = 0.4
doc.recompute()

polarpattern = body.newObject("PartDesign::PolarPattern", "PolarPattern")
polarpattern.Originals = [pocket11]
polarpattern.Axis = (doc.getObject("Y_Axis"), [""])
polarpattern.Angle = 360
polarpattern.Occurrences = 6
body.Tip = polarpattern

sketch16 = body.newObject("Sketcher::SketchObject", "Sketch015")
sketch16.AttachmentSupport = (doc.getObject("YZ_Plane"), [""])
sketch16.MapMode = "FlatFace"
sketch16.AttachmentOffset = App.Placement(V(0, 0, 30.63), App.Rotation())
sketch16.addGeometry([
    Part.LineSegment(V(44.1, -4.3, 0), V(44.1, 4.3, 0)),
    Part.LineSegment(V(44.1, 4.3, 0), V(31.1, 4.3, 0)),
    Part.LineSegment(V(31.1, 4.3, 0), V(29.4, 2.5, 0)),
    Part.LineSegment(V(29.4, 2.5, 0), V(6.3, 2.5, 0)),
    Part.ArcOfCircle(Part.Circle(V(6.3, 0, 0), V(0, 0, 1), 2.5), math.radians(90), math.radians(270)),
    Part.LineSegment(V(6.3, -2.5, 0), V(29.4, -2.5, 0)),
    Part.LineSegment(V(29.4, -2.5, 0), V(31.1, -4.3, 0)),
    Part.LineSegment(V(31.1, -4.3, 0), V(44.1, -4.3, 0)),
], False)
sketch16.addConstraint([
    Sketcher.Constraint("Coincident", 0, 2, 1, 1),
    Sketcher.Constraint("Coincident", 1, 2, 2, 1),
    Sketcher.Constraint("Coincident", 2, 2, 3, 1),
    Sketcher.Constraint("Tangent", 3, 2, 4, 1),
    Sketcher.Constraint("Tangent", 4, 2, 5, 1),
    Sketcher.Constraint("Coincident", 5, 2, 6, 1),
    Sketcher.Constraint("Coincident", 6, 2, 7, 1),
    Sketcher.Constraint("Coincident", 7, 2, 0, 1),
    Sketcher.Constraint("Vertical", 0),
    Sketcher.Constraint("Horizontal", 1),
    Sketcher.Constraint("Horizontal", 3),
    Sketcher.Constraint("Horizontal", 5),
    Sketcher.Constraint("Horizontal", 7),
    Sketcher.Constraint("Symmetric", 2, 2, 5, 2, -1),
    Sketcher.Constraint("Symmetric", 1, 2, 6, 2, -1),
    Sketcher.Constraint("Perpendicular", 2, 6),
    Sketcher.Constraint("DistanceY", 0, 1, 0, 2, 8.63),
    Sketcher.Constraint("Radius", 4, 2.52862),
    Sketcher.Constraint("DistanceX", 3, 2, 3, 1, 23.037451),
    Sketcher.Constraint("DistanceX", 1, 2, 1, 1, 12.910836),
    Sketcher.Constraint("DistanceX", -1, 1, 4, 3, 6.318897),
])
pocket12 = body.newObject("PartDesign::Pocket", "Pocket011")
pocket12.Profile = sketch16
pocket12.Length = 0.35
doc.recompute()

polarpattern2 = body.newObject("PartDesign::PolarPattern", "PolarPattern001")
polarpattern2.Originals = [pocket12]
polarpattern2.Axis = (doc.getObject("Y_Axis"), [""])
polarpattern2.Angle = 360
polarpattern2.Occurrences = 6
body.Tip = polarpattern2

sketch17 = body.newObject("Sketcher::SketchObject", "Sketch016")
sketch17.AttachmentSupport = (doc.getObject("XZ_Plane"), [""])
sketch17.MapMode = "FlatFace"
sketch17.AttachmentOffset = App.Placement(V(0, 0, -43.34), App.Rotation())
sketch17.addGeometry([
    Part.LineSegment(V(-0.7, -31.7, 0), V(-0.7, -30.6, 0)),
    Part.ArcOfCircle(Part.Circle(V(0, -30.6, 0), V(0, 0, 1), 0.8), math.radians(1), math.radians(179)),
    Part.LineSegment(V(0.7, -30.6, 0), V(0.7, -31.7, 0)),
    Part.LineSegment(V(0.7, -31.7, 0), V(-0.7, -31.7, 0)),
], False)
sketch17.addConstraint([
    Sketcher.Constraint("Coincident", 0, 2, 1, 2),
    Sketcher.Constraint("Coincident", 1, 1, 2, 1),
    Sketcher.Constraint("Coincident", 2, 2, 3, 1),
    Sketcher.Constraint("Coincident", 3, 2, 0, 1),
    Sketcher.Constraint("Vertical", 0),
    Sketcher.Constraint("Vertical", 2),
    Sketcher.Constraint("Horizontal", 3),
    Sketcher.Constraint("Symmetric", 0, 2, 1, 1, -2),
    Sketcher.Constraint("Radius", 1, 0.75),
    Sketcher.Constraint("DistanceY", 1, 3, -1, 1, 30.63),
    Sketcher.Constraint("DistanceX", 3, 2, 3, 1, 1.499888),
    Sketcher.Constraint("DistanceY", 0, 1, 0, 2, 1.040295),
])
pocket13 = body.newObject("PartDesign::Pocket", "Pocket012")
pocket13.Profile = sketch17
pocket13.Type = "ThroughAll"
pocket13.Reversed = True

sketch18 = body.newObject("Sketcher::SketchObject", "Sketch017")
sketch18.AttachmentSupport = (doc.getObject("XZ_Plane"), [""])
sketch18.MapMode = "FlatFace"
sketch18.AttachmentOffset = App.Placement(V(0, 0, -43.34), App.Rotation())
sketch18.addGeometry([
    Part.LineSegment(V(-1.6, -31.7, 0), V(-1.6, -30.6, 0)),
    Part.ArcOfCircle(Part.Circle(V(0, -32.1, 0), V(0, 0, 1), 2.3), math.radians(43), math.radians(137)),
    Part.LineSegment(V(1.6, -30.6, 0), V(1.6, -31.7, 0)),
    Part.LineSegment(V(1.6, -31.7, 0), V(-1.6, -31.7, 0)),
], False)
sketch18.addConstraint([
    Sketcher.Constraint("Coincident", 0, 2, 1, 2),
    Sketcher.Constraint("Coincident", 1, 1, 2, 1),
    Sketcher.Constraint("Coincident", 2, 2, 3, 1),
    Sketcher.Constraint("Coincident", 3, 2, 0, 1),
    Sketcher.Constraint("Vertical", 0),
    Sketcher.Constraint("Vertical", 2),
    Sketcher.Constraint("Horizontal", 3),
    Sketcher.Constraint("Symmetric", 0, 2, 1, 1, -2),
    Sketcher.Constraint("Radius", 1, 2.25174),
    Sketcher.Constraint("DistanceX", 3, 2, 3, 1, 3.275132),
    Sketcher.Constraint("DistanceY", 0, 1, 0, 2, 1.163196),
    Sketcher.Constraint("DistanceY", 1, 3, -1, 1, 32.13174),
])
pocket14 = body.newObject("PartDesign::Pocket", "Pocket013")
pocket14.Profile = sketch18
pocket14.Length = 15.26
pocket14.Reversed = True
doc.recompute()

polarpattern3 = body.newObject("PartDesign::PolarPattern", "PolarPattern002")
polarpattern3.Originals = [pocket14]
polarpattern3.Axis = (doc.getObject("Y_Axis"), [""])
polarpattern3.Angle = 360
polarpattern3.Occurrences = 6
body.Tip = polarpattern3
doc.recompute()

polarpattern4 = body.newObject("PartDesign::PolarPattern", "PolarPattern003")
polarpattern4.Originals = [pocket13]
polarpattern4.Axis = (doc.getObject("Y_Axis"), [""])
polarpattern4.Angle = 360
polarpattern4.Occurrences = 6
body.Tip = polarpattern4

sketch19 = body.newObject("Sketcher::SketchObject", "Sketch018")
sketch19.AttachmentSupport = (doc.getObject("XZ_Plane"), [""])
sketch19.MapMode = "FlatFace"
sketch19.addGeometry([
    Part.Circle(V(0, 21, 0), V(0, 0, 1), 7),
    Part.Circle(V(0, 21, 0), V(0, 0, 1), 6),
    Part.Circle(V(-18, 10, 0), V(0, 0, 1), 7),
    Part.Circle(V(-18, 10, 0), V(0, 0, 1), 6),
    Part.Circle(V(-18, -10, 0), V(0, 0, 1), 7),
    Part.Circle(V(-18, -10, 0), V(0, 0, 1), 6),
    Part.Circle(V(0, -21, 0), V(0, 0, 1), 7),
    Part.Circle(V(0, -21, 0), V(0, 0, 1), 6),
    Part.Circle(V(18, -10, 0), V(0, 0, 1), 7),
    Part.Circle(V(18, -10, 0), V(0, 0, 1), 6),
    Part.Circle(V(18, 10, 0), V(0, 0, 1), 7),
    Part.Circle(V(18, 10, 0), V(0, 0, 1), 6),
], False)
sketch19.addConstraint([
    Sketcher.Constraint("Coincident", 1, 3, 0, 3),
    Sketcher.Constraint("Coincident", 3, 3, 2, 3),
    Sketcher.Constraint("Coincident", 5, 3, 4, 3),
    Sketcher.Constraint("Coincident", 7, 3, 6, 3),
    Sketcher.Constraint("Coincident", 9, 3, 8, 3),
    Sketcher.Constraint("Coincident", 11, 3, 10, 3),
    Sketcher.Constraint("Equal", 0, 2),
    Sketcher.Constraint("Equal", 1, 3),
    Sketcher.Constraint("Equal", 2, 4),
    Sketcher.Constraint("Equal", 3, 5),
    Sketcher.Constraint("Equal", 4, 6),
    Sketcher.Constraint("Equal", 5, 7),
    Sketcher.Constraint("Equal", 6, 8),
    Sketcher.Constraint("Equal", 7, 9),
    Sketcher.Constraint("Equal", 8, 10),
    Sketcher.Constraint("Equal", 9, 11),
    Sketcher.Constraint("Symmetric", 0, 3, 6, 3, -1, 1),
    Sketcher.Constraint("Symmetric", 2, 3, 8, 3, -1, 1),
    Sketcher.Constraint("Symmetric", 4, 3, 10, 3, -1, 1),
    Sketcher.Constraint("Symmetric", 4, 3, 8, 3, -2),
    Sketcher.Constraint("PointOnObject", 0, 3, -2),
    Sketcher.Constraint("Diameter", 0, 14.72),
    Sketcher.Constraint("Diameter", 1, 12.66),
    Sketcher.Constraint("DistanceY", -1, 1, 2, 3, 10.497408),
    Sketcher.Constraint("DistanceY", 2, 3, 0, 3, 10.497408),
    Sketcher.Constraint("DistanceX", 4, 3, 8, 3, 36.364089),
])
pad4 = body.newObject("PartDesign::Pad", "Pad003")
pad4.Profile = sketch19
pad4.Length = 17.57

doc.recompute()
